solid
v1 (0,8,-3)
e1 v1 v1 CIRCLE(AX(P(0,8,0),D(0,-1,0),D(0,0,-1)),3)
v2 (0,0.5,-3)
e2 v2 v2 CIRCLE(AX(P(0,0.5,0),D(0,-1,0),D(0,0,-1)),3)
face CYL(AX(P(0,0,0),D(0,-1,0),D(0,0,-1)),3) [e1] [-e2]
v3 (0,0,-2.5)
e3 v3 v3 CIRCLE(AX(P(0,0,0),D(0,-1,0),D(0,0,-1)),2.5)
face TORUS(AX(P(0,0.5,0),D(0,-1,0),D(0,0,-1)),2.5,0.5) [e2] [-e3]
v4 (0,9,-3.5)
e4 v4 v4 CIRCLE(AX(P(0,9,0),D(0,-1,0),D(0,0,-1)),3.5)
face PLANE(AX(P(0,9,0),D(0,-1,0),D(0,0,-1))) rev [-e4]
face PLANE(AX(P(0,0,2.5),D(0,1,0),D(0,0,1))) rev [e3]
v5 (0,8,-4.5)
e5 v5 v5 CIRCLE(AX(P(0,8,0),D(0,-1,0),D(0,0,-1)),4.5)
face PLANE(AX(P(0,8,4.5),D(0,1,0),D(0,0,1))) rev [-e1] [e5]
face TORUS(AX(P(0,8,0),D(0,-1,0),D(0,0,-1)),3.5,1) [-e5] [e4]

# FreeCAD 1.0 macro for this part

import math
import FreeCAD as App
import Part
import Sketcher

V = App.Vector
Q = App.Units.Quantity

doc = App.newDocument("Part")
body = doc.addObject("PartDesign::Body", "Body")

# Sketch on YZ plane
sketch1 = body.newObject("Sketcher::SketchObject", "Sketch")
sketch1.AttachmentSupport = (doc.getObject("YZ_Plane"), [""])
sketch1.MapMode = "FlatFace"
sketch1.addGeometry(Part.LineSegment(V(9, 0, 0), V(9, 3.5, 0)), False)
sketch1.addGeometry(Part.ArcOfCircle(Part.Circle(V(8, 3.5, 0), V(0, 0, 1), 1), math.radians(0), math.radians(90)), False)
sketch1.addGeometry(Part.LineSegment(V(8, 4.5, 0), V(8, 3, 0)), False)
sketch1.addGeometry(Part.LineSegment(V(8, 3, 0), V(0.5, 3, 0)), False)
sketch1.addGeometry(Part.ArcOfCircle(Part.Circle(V(0.5, 2.5, 0), V(0, 0, 1), 0.5), math.radians(90), math.radians(180)), False)
sketch1.addGeometry(Part.LineSegment(V(0, 2.5, 0), V(0, 0, 0)), False)
sketch1.addGeometry(Part.LineSegment(V(0, 0, 0), V(9, 0, 0)), False)
sketch1.addConstraint(Sketcher.Constraint("Tangent", 0, 2, 1, 1))
sketch1.addConstraint(Sketcher.Constraint("Coincident", 1, 2, 2, 1))
sketch1.addConstraint(Sketcher.Constraint("Coincident", 2, 2, 3, 1))
sketch1.addConstraint(Sketcher.Constraint("Tangent", 3, 2, 4, 1))
sketch1.addConstraint(Sketcher.Constraint("Tangent", 4, 2, 5, 1))
sketch1.addConstraint(Sketcher.Constraint("Coincident", 5, 2, 6, 1))
sketch1.addConstraint(Sketcher.Constraint("Coincident", 6, 2, 0, 1))
sketch1.addConstraint(Sketcher.Constraint("Vertical", 0))
sketch1.addConstraint(Sketcher.Constraint("Vertical", 2))
sketch1.addConstraint(Sketcher.Constraint("Horizontal", 3))
sketch1.addConstraint(Sketcher.Constraint("Vertical", 5))
sketch1.addConstraint(Sketcher.Constraint("Horizontal", 6))
sketch1.addConstraint(Sketcher.Constraint("Coincident", 5, 2, -1, 1))
sketch1.addConstraint(Sketcher.Constraint("Radius", 1, Q("1 mm")))
sketch1.addConstraint(Sketcher.Constraint("Radius", 4, Q("0.5 mm")))
sketch1.addConstraint(Sketcher.Constraint("DistanceX", 6, 1, 6, 2, Q("9 mm")))
sketch1.addConstraint(Sketcher.Constraint("DistanceX", 3, 2, 3, 1, Q("7.5 mm")))
sketch1.addConstraint(Sketcher.Constraint("DistanceY", 0, 1, 0, 2, Q("3.5 mm")))
sketch1.addConstraint(Sketcher.Constraint("DistanceY", 2, 2, 2, 1, Q("1.5 mm")))
revolution = body.newObject("PartDesign::Revolution", "Revolution")
revolution.Profile = sketch1
revolution.ReferenceAxis = (sketch1, ["H_Axis"])
revolution.Angle = 360

doc.recompute()
